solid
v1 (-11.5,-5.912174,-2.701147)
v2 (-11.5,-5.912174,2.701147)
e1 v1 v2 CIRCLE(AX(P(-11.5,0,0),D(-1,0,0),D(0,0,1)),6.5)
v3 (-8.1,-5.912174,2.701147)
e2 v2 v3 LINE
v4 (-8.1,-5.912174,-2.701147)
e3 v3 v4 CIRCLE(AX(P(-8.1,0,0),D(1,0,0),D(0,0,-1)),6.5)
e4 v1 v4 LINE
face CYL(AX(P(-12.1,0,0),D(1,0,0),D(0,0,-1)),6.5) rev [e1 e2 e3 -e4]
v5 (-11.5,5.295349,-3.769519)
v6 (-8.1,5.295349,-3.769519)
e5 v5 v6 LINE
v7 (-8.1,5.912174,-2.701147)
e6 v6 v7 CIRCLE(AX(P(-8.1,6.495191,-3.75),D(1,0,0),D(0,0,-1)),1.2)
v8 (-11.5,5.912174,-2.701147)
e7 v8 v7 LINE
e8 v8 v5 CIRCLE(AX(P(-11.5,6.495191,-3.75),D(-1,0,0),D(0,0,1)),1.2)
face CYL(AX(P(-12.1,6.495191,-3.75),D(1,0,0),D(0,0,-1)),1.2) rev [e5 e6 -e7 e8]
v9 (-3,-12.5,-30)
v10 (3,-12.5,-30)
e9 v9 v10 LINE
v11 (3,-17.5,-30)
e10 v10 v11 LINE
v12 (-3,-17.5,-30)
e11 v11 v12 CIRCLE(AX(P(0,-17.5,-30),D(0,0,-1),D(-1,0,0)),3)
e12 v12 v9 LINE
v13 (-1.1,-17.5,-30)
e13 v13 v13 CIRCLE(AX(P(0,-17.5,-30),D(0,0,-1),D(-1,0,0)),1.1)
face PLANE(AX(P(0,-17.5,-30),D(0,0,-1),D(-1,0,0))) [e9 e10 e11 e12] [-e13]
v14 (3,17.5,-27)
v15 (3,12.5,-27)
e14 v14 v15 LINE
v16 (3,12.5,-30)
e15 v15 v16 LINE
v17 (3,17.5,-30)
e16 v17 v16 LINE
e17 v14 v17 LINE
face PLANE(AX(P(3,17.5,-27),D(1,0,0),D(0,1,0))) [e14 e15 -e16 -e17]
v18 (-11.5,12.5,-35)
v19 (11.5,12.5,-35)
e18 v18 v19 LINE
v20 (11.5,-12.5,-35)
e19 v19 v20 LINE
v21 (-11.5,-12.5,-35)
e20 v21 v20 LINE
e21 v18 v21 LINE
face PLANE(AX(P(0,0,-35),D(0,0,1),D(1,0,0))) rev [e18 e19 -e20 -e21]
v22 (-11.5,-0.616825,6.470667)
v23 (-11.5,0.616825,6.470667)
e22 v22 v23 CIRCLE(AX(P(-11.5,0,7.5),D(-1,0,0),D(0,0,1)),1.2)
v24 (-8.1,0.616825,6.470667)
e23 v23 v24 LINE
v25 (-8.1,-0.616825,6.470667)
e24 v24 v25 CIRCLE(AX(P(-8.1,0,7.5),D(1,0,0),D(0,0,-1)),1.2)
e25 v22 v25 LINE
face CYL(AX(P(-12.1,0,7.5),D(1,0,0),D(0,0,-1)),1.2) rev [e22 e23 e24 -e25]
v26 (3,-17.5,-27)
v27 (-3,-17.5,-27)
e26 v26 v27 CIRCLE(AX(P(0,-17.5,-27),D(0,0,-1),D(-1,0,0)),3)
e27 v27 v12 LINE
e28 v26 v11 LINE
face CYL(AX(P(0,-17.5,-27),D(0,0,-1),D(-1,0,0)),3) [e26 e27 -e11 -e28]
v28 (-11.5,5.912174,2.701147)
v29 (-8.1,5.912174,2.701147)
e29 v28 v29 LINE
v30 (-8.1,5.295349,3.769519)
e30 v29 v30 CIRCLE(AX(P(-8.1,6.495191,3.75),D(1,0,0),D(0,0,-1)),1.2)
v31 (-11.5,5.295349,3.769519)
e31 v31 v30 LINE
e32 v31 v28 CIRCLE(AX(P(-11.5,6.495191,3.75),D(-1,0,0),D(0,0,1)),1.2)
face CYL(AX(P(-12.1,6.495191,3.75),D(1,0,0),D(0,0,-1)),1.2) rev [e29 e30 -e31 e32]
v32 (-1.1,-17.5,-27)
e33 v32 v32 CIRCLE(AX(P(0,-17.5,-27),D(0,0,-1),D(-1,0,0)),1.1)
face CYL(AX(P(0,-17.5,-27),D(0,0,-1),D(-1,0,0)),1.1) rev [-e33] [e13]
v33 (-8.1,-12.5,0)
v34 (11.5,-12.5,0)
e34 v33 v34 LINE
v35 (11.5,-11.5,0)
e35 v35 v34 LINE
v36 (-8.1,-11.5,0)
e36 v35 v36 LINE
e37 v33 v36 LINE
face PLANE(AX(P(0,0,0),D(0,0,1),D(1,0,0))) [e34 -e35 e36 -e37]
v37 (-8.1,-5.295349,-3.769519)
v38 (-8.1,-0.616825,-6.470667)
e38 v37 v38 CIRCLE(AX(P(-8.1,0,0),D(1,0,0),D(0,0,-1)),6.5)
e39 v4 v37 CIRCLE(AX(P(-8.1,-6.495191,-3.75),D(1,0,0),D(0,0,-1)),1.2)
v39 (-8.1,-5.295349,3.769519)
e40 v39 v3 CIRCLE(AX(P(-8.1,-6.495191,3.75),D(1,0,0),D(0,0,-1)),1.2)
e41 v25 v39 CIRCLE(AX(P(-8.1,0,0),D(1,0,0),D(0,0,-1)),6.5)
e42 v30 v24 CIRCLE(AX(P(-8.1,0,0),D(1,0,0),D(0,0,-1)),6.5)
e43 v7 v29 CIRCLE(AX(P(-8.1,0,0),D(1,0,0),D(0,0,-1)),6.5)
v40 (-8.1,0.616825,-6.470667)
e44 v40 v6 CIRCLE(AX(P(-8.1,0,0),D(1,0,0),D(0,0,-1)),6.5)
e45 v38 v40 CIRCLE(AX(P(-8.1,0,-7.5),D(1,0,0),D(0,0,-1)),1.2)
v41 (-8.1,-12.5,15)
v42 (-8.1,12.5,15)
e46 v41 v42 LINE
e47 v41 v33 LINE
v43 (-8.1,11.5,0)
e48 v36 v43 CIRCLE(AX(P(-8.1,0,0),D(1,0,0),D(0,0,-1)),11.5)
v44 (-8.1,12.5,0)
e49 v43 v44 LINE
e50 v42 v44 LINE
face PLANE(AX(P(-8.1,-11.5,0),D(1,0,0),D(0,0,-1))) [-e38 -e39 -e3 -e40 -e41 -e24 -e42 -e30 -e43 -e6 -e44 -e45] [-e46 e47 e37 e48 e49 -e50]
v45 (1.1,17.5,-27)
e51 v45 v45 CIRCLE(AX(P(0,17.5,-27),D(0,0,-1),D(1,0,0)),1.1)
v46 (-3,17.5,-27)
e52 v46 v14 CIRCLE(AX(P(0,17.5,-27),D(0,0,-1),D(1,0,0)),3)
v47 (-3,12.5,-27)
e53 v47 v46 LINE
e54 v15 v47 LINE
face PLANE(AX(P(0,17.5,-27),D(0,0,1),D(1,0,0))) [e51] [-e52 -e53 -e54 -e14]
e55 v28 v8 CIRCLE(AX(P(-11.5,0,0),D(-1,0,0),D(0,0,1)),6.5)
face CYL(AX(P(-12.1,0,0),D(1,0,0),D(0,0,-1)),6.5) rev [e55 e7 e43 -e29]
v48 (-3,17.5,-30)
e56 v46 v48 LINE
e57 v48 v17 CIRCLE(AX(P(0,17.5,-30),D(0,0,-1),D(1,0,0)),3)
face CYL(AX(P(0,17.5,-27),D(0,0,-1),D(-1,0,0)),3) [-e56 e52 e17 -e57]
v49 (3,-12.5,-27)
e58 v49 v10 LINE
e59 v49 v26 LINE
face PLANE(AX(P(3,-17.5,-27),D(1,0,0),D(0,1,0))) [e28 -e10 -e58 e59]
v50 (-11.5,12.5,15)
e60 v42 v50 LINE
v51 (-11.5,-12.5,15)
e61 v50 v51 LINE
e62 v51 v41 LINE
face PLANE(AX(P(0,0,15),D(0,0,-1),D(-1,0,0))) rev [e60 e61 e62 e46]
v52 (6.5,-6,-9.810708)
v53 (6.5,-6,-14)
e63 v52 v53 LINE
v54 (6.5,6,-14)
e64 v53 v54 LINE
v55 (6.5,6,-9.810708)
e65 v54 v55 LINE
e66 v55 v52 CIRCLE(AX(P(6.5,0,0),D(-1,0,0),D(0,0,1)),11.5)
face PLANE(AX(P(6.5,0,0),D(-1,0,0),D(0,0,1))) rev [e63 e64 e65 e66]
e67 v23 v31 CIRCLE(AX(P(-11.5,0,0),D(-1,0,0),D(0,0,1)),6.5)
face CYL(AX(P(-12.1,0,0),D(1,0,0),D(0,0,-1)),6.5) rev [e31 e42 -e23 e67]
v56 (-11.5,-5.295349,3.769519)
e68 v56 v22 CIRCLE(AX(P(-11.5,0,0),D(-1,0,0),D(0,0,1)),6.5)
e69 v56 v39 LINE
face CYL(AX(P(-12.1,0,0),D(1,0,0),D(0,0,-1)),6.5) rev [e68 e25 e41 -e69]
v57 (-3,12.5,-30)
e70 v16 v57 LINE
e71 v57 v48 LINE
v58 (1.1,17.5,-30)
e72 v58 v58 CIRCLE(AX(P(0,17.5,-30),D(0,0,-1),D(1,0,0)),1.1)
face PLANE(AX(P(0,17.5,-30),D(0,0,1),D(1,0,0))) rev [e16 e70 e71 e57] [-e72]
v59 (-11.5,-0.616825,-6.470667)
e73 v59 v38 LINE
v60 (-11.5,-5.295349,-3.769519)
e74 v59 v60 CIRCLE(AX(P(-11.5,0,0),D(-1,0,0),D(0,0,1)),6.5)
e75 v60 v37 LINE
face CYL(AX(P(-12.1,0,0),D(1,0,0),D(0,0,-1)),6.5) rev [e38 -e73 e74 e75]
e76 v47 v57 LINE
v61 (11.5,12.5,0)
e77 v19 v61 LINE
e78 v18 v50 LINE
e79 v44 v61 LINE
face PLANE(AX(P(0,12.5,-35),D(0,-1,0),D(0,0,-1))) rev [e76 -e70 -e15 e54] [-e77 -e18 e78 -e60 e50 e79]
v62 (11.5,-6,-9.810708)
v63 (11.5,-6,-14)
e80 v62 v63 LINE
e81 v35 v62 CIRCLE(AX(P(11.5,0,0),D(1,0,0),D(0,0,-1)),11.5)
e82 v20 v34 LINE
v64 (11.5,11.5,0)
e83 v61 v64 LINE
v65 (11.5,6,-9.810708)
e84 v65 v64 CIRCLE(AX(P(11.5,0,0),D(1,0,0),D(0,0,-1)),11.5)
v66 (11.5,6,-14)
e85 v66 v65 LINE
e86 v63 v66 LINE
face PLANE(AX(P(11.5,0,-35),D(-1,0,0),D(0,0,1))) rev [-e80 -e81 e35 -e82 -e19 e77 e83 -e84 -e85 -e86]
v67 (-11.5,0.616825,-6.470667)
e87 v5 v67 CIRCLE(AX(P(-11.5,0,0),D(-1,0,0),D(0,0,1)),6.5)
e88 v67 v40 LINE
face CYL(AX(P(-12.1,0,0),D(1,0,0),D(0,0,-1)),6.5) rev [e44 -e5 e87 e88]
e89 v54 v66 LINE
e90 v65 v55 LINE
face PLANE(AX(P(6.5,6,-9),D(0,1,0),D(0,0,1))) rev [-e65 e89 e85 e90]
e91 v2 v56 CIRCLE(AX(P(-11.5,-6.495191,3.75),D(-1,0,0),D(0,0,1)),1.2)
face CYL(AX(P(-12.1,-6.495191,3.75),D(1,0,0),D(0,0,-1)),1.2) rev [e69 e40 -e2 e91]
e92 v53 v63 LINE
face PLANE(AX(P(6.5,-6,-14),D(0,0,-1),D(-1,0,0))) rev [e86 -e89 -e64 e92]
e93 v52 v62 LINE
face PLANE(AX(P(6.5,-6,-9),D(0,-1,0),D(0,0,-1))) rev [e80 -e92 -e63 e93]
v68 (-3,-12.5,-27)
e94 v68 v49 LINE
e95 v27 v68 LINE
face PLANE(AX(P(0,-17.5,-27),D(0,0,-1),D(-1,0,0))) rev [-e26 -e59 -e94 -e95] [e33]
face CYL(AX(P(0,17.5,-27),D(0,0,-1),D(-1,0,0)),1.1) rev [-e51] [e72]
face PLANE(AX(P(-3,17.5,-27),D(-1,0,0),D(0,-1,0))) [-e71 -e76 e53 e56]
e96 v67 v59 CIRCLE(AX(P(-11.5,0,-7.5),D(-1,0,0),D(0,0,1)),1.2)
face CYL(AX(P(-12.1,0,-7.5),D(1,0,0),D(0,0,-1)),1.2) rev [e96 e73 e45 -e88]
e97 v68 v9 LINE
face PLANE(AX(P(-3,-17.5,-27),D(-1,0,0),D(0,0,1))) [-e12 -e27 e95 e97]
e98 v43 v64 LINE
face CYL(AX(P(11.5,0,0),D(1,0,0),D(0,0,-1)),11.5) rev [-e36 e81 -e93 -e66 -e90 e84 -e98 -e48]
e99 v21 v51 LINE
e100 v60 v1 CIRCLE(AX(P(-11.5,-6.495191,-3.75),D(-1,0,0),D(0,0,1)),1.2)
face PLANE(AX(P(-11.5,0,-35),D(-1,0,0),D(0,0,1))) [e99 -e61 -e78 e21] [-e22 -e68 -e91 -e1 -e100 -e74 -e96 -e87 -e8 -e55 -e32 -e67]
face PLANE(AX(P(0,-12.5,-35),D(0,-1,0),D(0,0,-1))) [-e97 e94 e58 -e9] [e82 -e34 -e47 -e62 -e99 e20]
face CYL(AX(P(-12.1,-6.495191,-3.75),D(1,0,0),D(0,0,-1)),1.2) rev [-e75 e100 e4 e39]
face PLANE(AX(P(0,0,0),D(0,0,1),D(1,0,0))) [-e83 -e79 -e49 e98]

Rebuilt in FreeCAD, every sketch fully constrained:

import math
import FreeCAD as App
import Part
import Sketcher

V = App.Vector


def add_polygon(sketch, points):
    """Adds a closed chain of lines whose ends are joined by coincident constraints."""
    first, n = sketch.GeometryCount, len(points)
    for a, b in zip(points, points[1:] + points[:1]):
        sketch.addGeometry(Part.LineSegment(App.Vector(*a, 0), App.Vector(*b, 0)), False)
    for i in range(n):
        sketch.addConstraint(Sketcher.Constraint("Coincident", first + i, 2, first + (i + 1) % n, 1))

doc = App.newDocument("Part")
body = doc.addObject("PartDesign::Body", "Body")

# Sketch on XY plane
sketch1 = body.newObject("Sketcher::SketchObject", "Sketch")
sketch1.AttachmentSupport = (doc.getObject("XY_Plane"), [""])
sketch1.MapMode = "FlatFace"
add_polygon(sketch1, [(-11.5, 12.5), (-11.5, -12.5), (11.5, -12.5), (11.5, 12.5)])  # lines 0-3
sketch1.addConstraint([
    Sketcher.Constraint("Vertical", 0),
    Sketcher.Constraint("Horizontal", 1),
    Sketcher.Constraint("Vertical", 2),
    Sketcher.Constraint("Horizontal", 3),
    Sketcher.Constraint("Symmetric", 0, 2, 2, 2, -1, 1),
    Sketcher.Constraint("DistanceX", 1, 1, 1, 2, 23.0),
    Sketcher.Constraint("DistanceY", 0, 2, 0, 1, 25.0),
])
pad1 = body.newObject("PartDesign::Pad", "Pad")
pad1.Profile = sketch1
pad1.Length = 35
pad1.Reversed = True

# Sketch on XY plane
sketch2 = body.newObject("Sketcher::SketchObject", "Sketch001")
sketch2.AttachmentSupport = (doc.getObject("XY_Plane"), [""])
sketch2.MapMode = "FlatFace"
add_polygon(sketch2, [(-8.1, 0), (-8.1, -11.5), (11.5, -11.5), (11.5, 0)])  # lines 0-3
sketch2.addConstraint([
    Sketcher.Constraint("Vertical", 0),
    Sketcher.Constraint("Horizontal", 1),
    Sketcher.Constraint("Vertical", 2),
    Sketcher.Constraint("Horizontal", 3),
    Sketcher.Constraint("PointOnObject", 2, 2, -1),
    Sketcher.Constraint("DistanceX", 1, 1, 1, 2, 19.6),
    Sketcher.Constraint("DistanceY", 0, 2, 0, 1, 11.5),
    Sketcher.Constraint("DistanceX", 0, 2, -1, 1, 8.1),
])
groove = body.newObject("PartDesign::Groove", "Groove")
groove.Profile = sketch2
groove.ReferenceAxis = (sketch2, ["H_Axis"])
groove.Angle = 360

# Sketch on XY plane
sketch3 = body.newObject("Sketcher::SketchObject", "Sketch002")
sketch3.AttachmentSupport = (doc.getObject("XY_Plane"), [""])
sketch3.MapMode = "FlatFace"
add_polygon(sketch3, [(-11.5, 12.5), (-11.5, -12.5), (-8.1, -12.5), (-8.1, 12.5)])  # lines 0-3
sketch3.addConstraint([
    Sketcher.Constraint("Vertical", 0),
    Sketcher.Constraint("Horizontal", 1),
    Sketcher.Constraint("Vertical", 2),
    Sketcher.Constraint("Horizontal", 3),
    Sketcher.Constraint("DistanceY", 0, 2, 0, 1, 25.0),
    Sketcher.Constraint("DistanceX", 1, 1, 1, 2, 3.4),
    Sketcher.Constraint("DistanceX", 0, 2, -1, 1, 11.5),
    Sketcher.Constraint("DistanceY", 0, 2, -1, 1, 12.5),
])
pad2 = body.newObject("PartDesign::Pad", "Pad001")
pad2.Profile = sketch3
pad2.Length = 15

# Sketch on YZ plane
sketch4 = body.newObject("Sketcher::SketchObject", "Sketch003")
sketch4.AttachmentSupport = (doc.getObject("YZ_Plane"), [""])
sketch4.MapMode = "FlatFace"
sketch4.AttachmentOffset = App.Placement(V(0, 0, -8.1), App.Rotation())
sketch4.addGeometry([
    Part.ArcOfCircle(Part.Circle(V(0, 0, 0), V(0, 0, 1), 6.5), math.radians(155.445341), math.radians(204.554659)),  # 0
    Part.ArcOfCircle(Part.Circle(V(-6.495191, -3.75, 0), V(0, 0, 1), 1.2), math.radians(60.93202), math.radians(359.06798)),  # 1
    Part.ArcOfCircle(Part.Circle(V(0, 0, 0), V(0, 0, 1), 6.5), math.radians(-144.554659), math.radians(-95.445341)),  # 2
    Part.ArcOfCircle(Part.Circle(V(0, -7.5, 0), V(0, 0, 1), 1.2), math.radians(120.93202), math.radians(419.06798)),  # 3
    Part.ArcOfCircle(Part.Circle(V(0, 0, 0), V(0, 0, 1), 6.5), math.radians(-84.554659), math.radians(-35.445341)),  # 4
    Part.ArcOfCircle(Part.Circle(V(6.495191, -3.75, 0), V(0, 0, 1), 1.2), math.radians(-179.06798), math.radians(119.06798)),  # 5
    Part.ArcOfCircle(Part.Circle(V(0, 0, 0), V(0, 0, 1), 6.5), math.radians(-24.554659), math.radians(24.554659)),  # 6
    Part.ArcOfCircle(Part.Circle(V(6.495191, 3.75, 0), V(0, 0, 1), 1.2), math.radians(-119.06798), math.radians(179.06798)),  # 7
    Part.ArcOfCircle(Part.Circle(V(0, 0, 0), V(0, 0, 1), 6.5), math.radians(35.445341), math.radians(84.554659)),  # 8
    Part.ArcOfCircle(Part.Circle(V(0, 7.5, 0), V(0, 0, 1), 1.2), math.radians(-59.06798), math.radians(239.06798)),  # 9
    Part.ArcOfCircle(Part.Circle(V(0, 0, 0), V(0, 0, 1), 6.5), math.radians(95.445341), math.radians(144.554659)),  # 10
    Part.ArcOfCircle(Part.Circle(V(-6.495191, 3.75, 0), V(0, 0, 1), 1.2), math.radians(0.93202), math.radians(299.06798)),  # 11
], False)
sketch4.addConstraint([
    Sketcher.Constraint("Coincident", 0, 2, 1, 1),
    Sketcher.Constraint("Coincident", 1, 2, 2, 1),
    Sketcher.Constraint("Coincident", 2, 2, 3, 1),
    Sketcher.Constraint("Coincident", 3, 2, 4, 1),
    Sketcher.Constraint("Coincident", 4, 2, 5, 1),
    Sketcher.Constraint("Coincident", 5, 2, 6, 1),
    Sketcher.Constraint("Coincident", 6, 2, 7, 1),
    Sketcher.Constraint("Coincident", 7, 2, 8, 1),
    Sketcher.Constraint("Coincident", 8, 2, 9, 1),
    Sketcher.Constraint("Coincident", 9, 2, 10, 1),
    Sketcher.Constraint("Coincident", 10, 2, 11, 1),
    Sketcher.Constraint("Coincident", 11, 2, 0, 1),
    Sketcher.Constraint("Coincident", 0, 3, -1, 1),
    Sketcher.Constraint("Coincident", 2, 3, -1, 1),
    Sketcher.Constraint("Coincident", 4, 3, -1, 1),
    Sketcher.Constraint("Coincident", 6, 3, -1, 1),
    Sketcher.Constraint("Coincident", 8, 3, -1, 1),
    Sketcher.Constraint("Coincident", 10, 3, -1, 1),
    Sketcher.Constraint("Equal", 0, 2),
    Sketcher.Constraint("Equal", 1, 3),
    Sketcher.Constraint("Equal", 2, 4),
    Sketcher.Constraint("Equal", 3, 5),
    Sketcher.Constraint("Equal", 4, 6),
    Sketcher.Constraint("Equal", 5, 7),
    Sketcher.Constraint("Equal", 6, 8),
    Sketcher.Constraint("Equal", 7, 9),
    Sketcher.Constraint("Equal", 8, 10),
    Sketcher.Constraint("Equal", 9, 11),
    Sketcher.Constraint("Symmetric", 1, 3, 7, 3, -1, 1),
    Sketcher.Constraint("Symmetric", 3, 3, 9, 3, -1, 1),
    Sketcher.Constraint("Symmetric", 5, 3, 11, 3, -1, 1),
    Sketcher.Constraint("Symmetric", 1, 3, 5, 3, -2),
    Sketcher.Constraint("PointOnObject", 3, 3, -2),
    Sketcher.Constraint("Radius", 0, 6.5),
    Sketcher.Constraint("Radius", 1, 1.2),
    Sketcher.Constraint("DistanceY", 3, 3, -1, 1, 7.5),
    Sketcher.Constraint("DistanceY", 5, 3, 7, 3, 7.5),
    Sketcher.Constraint("DistanceX", 1, 3, -1, 1, 6.495191),
])
pocket1 = body.newObject("PartDesign::Pocket", "Pocket")
pocket1.Profile = sketch4
pocket1.Length = 4

# Sketch on YZ plane
sketch5 = body.newObject("Sketcher::SketchObject", "Sketch004")
sketch5.AttachmentSupport = (doc.getObject("YZ_Plane"), [""])
sketch5.MapMode = "FlatFace"
sketch5.AttachmentOffset = App.Placement(V(0, 0, 11.5), App.Rotation())
add_polygon(sketch5, [(6, -9), (-6, -9), (-6, -14), (6, -14)])  # lines 0-3
sketch5.addConstraint([
    Sketcher.Constraint("Horizontal", 0),
    Sketcher.Constraint("Vertical", 1),
    Sketcher.Constraint("Horizontal", 2),
    Sketcher.Constraint("Vertical", 3),
    Sketcher.Constraint("DistanceX", 0, 2, 0, 1, 12.0),
    Sketcher.Constraint("DistanceY", 1, 2, 1, 1, 5.0),
    Sketcher.Constraint("DistanceX", 0, 2, -1, 1, 6.0),
    Sketcher.Constraint("DistanceY", 0, 2, -1, 1, 9.0),
])
pocket2 = body.newObject("PartDesign::Pocket", "Pocket001")
pocket2.Profile = sketch5
pocket2.Length = 5

# Sketch on XY plane
sketch6 = body.newObject("Sketcher::SketchObject", "Sketch005")
sketch6.AttachmentSupport = (doc.getObject("XY_Plane"), [""])
sketch6.MapMode = "FlatFace"
sketch6.AttachmentOffset = App.Placement(V(0, 0, -35), App.Rotation())
sketch6.addGeometry([
    Part.LineSegment(V(-3, 12.5, 0), V(-3, 17.5, 0)),  # 0
    Part.ArcOfCircle(Part.Circle(V(0, 17.5, 0), V(0, 0, 1), 3), math.radians(0), math.radians(180)),  # 1
    Part.LineSegment(V(3, 17.5, 0), V(3, 12.5, 0)),  # 2
    Part.LineSegment(V(3, 12.5, 0), V(-3, 12.5, 0)),  # 3
    Part.Circle(V(0, 17.5, 0), V(0, 0, 1), 1.1),  # 4
    Part.LineSegment(V(3, -12.5, 0), V(3, -17.5, 0)),  # 5
    Part.ArcOfCircle(Part.Circle(V(0, -17.5, 0), V(0, 0, 1), 3), math.radians(180), math.radians(360)),  # 6
    Part.LineSegment(V(-3, -17.5, 0), V(-3, -12.5, 0)),  # 7
    Part.LineSegment(V(-3, -12.5, 0), V(3, -12.5, 0)),  # 8
    Part.Circle(V(0, -17.5, 0), V(0, 0, 1), 1.1),  # 9
], False)
sketch6.addConstraint([
    Sketcher.Constraint("Tangent", 0, 2, 1, 2),
    Sketcher.Constraint("Tangent", 1, 1, 2, 1),
    Sketcher.Constraint("Coincident", 2, 2, 3, 1),
    Sketcher.Constraint("Coincident", 3, 2, 0, 1),
    Sketcher.Constraint("Tangent", 5, 2, 6, 2),
    Sketcher.Constraint("Tangent", 6, 1, 7, 1),
    Sketcher.Constraint("Coincident", 7, 2, 8, 1),
    Sketcher.Constraint("Coincident", 8, 2, 5, 1),
    Sketcher.Constraint("Vertical", 0),
    Sketcher.Constraint("Vertical", 2),
    Sketcher.Constraint("Horizontal", 3),
    Sketcher.Constraint("Vertical", 5),
    Sketcher.Constraint("Vertical", 7),
    Sketcher.Constraint("Horizontal", 8),
    Sketcher.Constraint("Coincident", 4, 3, 1, 3),
    Sketcher.Constraint("Coincident", 9, 3, 6, 3),
    Sketcher.Constraint("Equal", 1, 6),
    Sketcher.Constraint("Equal", 4, 9),
    Sketcher.Constraint("Symmetric", 1, 3, 6, 3, -1, 1),
    Sketcher.Constraint("Symmetric", 3, 2, 7, 2, -1),
    Sketcher.Constraint("Radius", 1, 3.0),
    Sketcher.Constraint("Diameter", 4, 2.2),
    Sketcher.Constraint("DistanceY", 0, 1, 0, 2, 5.0),
    Sketcher.Constraint("DistanceY", 6, 3, 1, 3, 35.0),
])
pad3 = body.newObject("PartDesign::Pad", "Pad002")
pad3.Profile = sketch6
pad3.Length = 8

# Sketch on XY plane
sketch7 = body.newObject("Sketcher::SketchObject", "Sketch006")
sketch7.AttachmentSupport = (doc.getObject("XY_Plane"), [""])
sketch7.MapMode = "FlatFace"
sketch7.AttachmentOffset = App.Placement(V(0, 0, -35), App.Rotation())
sketch7.addGeometry([
    Part.LineSegment(V(-3, 12.5, 0), V(-3, 17.5, 0)),  # 0
    Part.ArcOfCircle(Part.Circle(V(0, 17.5, 0), V(0, 0, 1), 3), math.radians(0), math.radians(180)),  # 1
    Part.LineSegment(V(3, 17.5, 0), V(3, 12.5, 0)),  # 2
    Part.LineSegment(V(3, 12.5, 0), V(-3, 12.5, 0)),  # 3
    Part.Circle(V(0, 17.5, 0), V(0, 0, 1), 1.1),  # 4
    Part.LineSegment(V(3, -12.5, 0), V(3, -17.5, 0)),  # 5
    Part.ArcOfCircle(Part.Circle(V(0, -17.5, 0), V(0, 0, 1), 3), math.radians(180), math.radians(360)),  # 6
    Part.LineSegment(V(-3, -17.5, 0), V(-3, -12.5, 0)),  # 7
    Part.LineSegment(V(-3, -12.5, 0), V(3, -12.5, 0)),  # 8
    Part.Circle(V(0, -17.5, 0), V(0, 0, 1), 1.1),  # 9
], False)
sketch7.addConstraint([
    Sketcher.Constraint("Tangent", 0, 2, 1, 2),
    Sketcher.Constraint("Tangent", 1, 1, 2, 1),
    Sketcher.Constraint("Coincident", 2, 2, 3, 1),
    Sketcher.Constraint("Coincident", 3, 2, 0, 1),
    Sketcher.Constraint("Tangent", 5, 2, 6, 2),
    Sketcher.Constraint("Tangent", 6, 1, 7, 1),
    Sketcher.Constraint("Coincident", 7, 2, 8, 1),
    Sketcher.Constraint("Coincident", 8, 2, 5, 1),
    Sketcher.Constraint("Vertical", 0),
    Sketcher.Constraint("Vertical", 2),
    Sketcher.Constraint("Horizontal", 3),
    Sketcher.Constraint("Vertical", 5),
    Sketcher.Constraint("Vertical", 7),
    Sketcher.Constraint("Horizontal", 8),
    Sketcher.Constraint("Coincident", 4, 3, 1, 3),
    Sketcher.Constraint("Coincident", 9, 3, 6, 3),
    Sketcher.Constraint("Equal", 1, 6),
    Sketcher.Constraint("Equal", 4, 9),
    Sketcher.Constraint("Symmetric", 1, 3, 6, 3, -1, 1),
    Sketcher.Constraint("Symmetric", 3, 2, 7, 2, -1),
    Sketcher.Constraint("Radius", 1, 3.0),
    Sketcher.Constraint("Diameter", 4, 2.2),
    Sketcher.Constraint("DistanceY", 0, 1, 0, 2, 5.0),
    Sketcher.Constraint("DistanceY", 6, 3, 1, 3, 35.0),
])
pocket3 = body.newObject("PartDesign::Pocket", "Pocket002")
pocket3.Profile = sketch7
pocket3.Length = 5
pocket3.Reversed = True

doc.recompute()
